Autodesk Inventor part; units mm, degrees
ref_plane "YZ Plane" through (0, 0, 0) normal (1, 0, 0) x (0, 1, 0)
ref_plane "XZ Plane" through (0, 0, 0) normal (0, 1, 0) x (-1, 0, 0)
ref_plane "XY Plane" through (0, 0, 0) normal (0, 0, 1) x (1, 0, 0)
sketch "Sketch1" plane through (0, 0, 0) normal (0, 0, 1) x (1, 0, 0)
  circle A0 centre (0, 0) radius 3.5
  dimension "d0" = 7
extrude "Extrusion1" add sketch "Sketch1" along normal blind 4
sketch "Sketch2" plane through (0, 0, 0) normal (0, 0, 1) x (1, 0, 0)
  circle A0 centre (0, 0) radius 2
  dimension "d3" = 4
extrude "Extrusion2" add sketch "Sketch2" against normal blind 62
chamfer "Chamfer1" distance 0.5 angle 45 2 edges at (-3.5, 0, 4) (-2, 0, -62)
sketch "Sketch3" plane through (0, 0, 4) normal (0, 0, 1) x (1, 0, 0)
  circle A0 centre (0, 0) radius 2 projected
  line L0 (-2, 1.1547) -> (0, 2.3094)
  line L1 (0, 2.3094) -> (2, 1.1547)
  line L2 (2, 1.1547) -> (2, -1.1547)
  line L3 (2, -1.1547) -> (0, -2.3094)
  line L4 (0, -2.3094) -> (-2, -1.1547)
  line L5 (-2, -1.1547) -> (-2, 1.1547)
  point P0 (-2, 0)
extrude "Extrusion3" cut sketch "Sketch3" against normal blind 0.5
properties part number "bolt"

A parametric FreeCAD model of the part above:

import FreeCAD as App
import Part
import Sketcher

V = App.Vector
Q = App.Units.Quantity


def edges_at(feature, points):
    """Names of the edges that pass closest to the given points."""
    edges = feature.Shape.Edges
    near = lambda p: min(range(len(edges)), key=lambda i: edges[i].distToShape(Part.Vertex(*p))[0])
    return sorted({f"Edge{near(p) + 1}" for p in points})

doc = App.newDocument("Part")
body = doc.addObject("PartDesign::Body", "Body")

sketch1 = body.newObject("Sketcher::SketchObject", "Sketch")
sketch1.AttachmentSupport = (doc.getObject("XY_Plane"), [""])
sketch1.MapMode = "FlatFace"
sketch1.addGeometry(Part.Circle(V(0, 0, 0), V(0, 0, 1), 3.5), False)
sketch1.addConstraint([
    Sketcher.Constraint("Coincident", 0, 3, -1, 1),
    Sketcher.Constraint("Diameter", 0, Q("7 mm")),
])
pad1 = body.newObject("PartDesign::Pad", "Pad")
pad1.Profile = sketch1
pad1.Length = 4

sketch2 = body.newObject("Sketcher::SketchObject", "Sketch001")
sketch2.AttachmentSupport = (doc.getObject("XY_Plane"), [""])
sketch2.MapMode = "FlatFace"
sketch2.addGeometry(Part.Circle(V(0, 0, 0), V(0, 0, 1), 2), False)
sketch2.addConstraint([
    Sketcher.Constraint("Coincident", 0, 3, -1, 1),
    Sketcher.Constraint("Diameter", 0, Q("4 mm")),
])
pad2 = body.newObject("PartDesign::Pad", "Pad001")
pad2.Profile = sketch2
pad2.Length = 62
pad2.Reversed = True
doc.recompute()

chamfer = body.newObject("PartDesign::Chamfer", "Chamfer")
chamfer.Base = (pad2, edges_at(pad2, [(-3.5, 0, 4), (-2, 0, -62)]))
chamfer.Size = 0.5

sketch3 = body.newObject("Sketcher::SketchObject", "Sketch002")
sketch3.AttachmentSupport = (doc.getObject("XY_Plane"), [""])
sketch3.MapMode = "FlatFace"
sketch3.AttachmentOffset = App.Placement(V(0, 0, 4), App.Rotation())
sketch3.addGeometry([
    Part.LineSegment(V(2, -1.2, 0), V(2, 1.2, 0)),
    Part.LineSegment(V(2, 1.2, 0), V(0, 2.3, 0)),
    Part.LineSegment(V(0, 2.3, 0), V(-2, 1.2, 0)),
    Part.LineSegment(V(-2, 1.2, 0), V(-2, -1.2, 0)),
    Part.LineSegment(V(-2, -1.2, 0), V(0, -2.3, 0)),
    Part.LineSegment(V(0, -2.3, 0), V(2, -1.2, 0)),
], False)
sketch3.addConstraint([
    Sketcher.Constraint("Coincident", 0, 2, 1, 1),
    Sketcher.Constraint("Coincident", 1, 2, 2, 1),
    Sketcher.Constraint("Coincident", 2, 2, 3, 1),
    Sketcher.Constraint("Coincident", 3, 2, 4, 1),
    Sketcher.Constraint("Coincident", 4, 2, 5, 1),
    Sketcher.Constraint("Coincident", 5, 2, 0, 1),
    Sketcher.Constraint("Vertical", 0),
    Sketcher.Constraint("Vertical", 3),
    Sketcher.Constraint("Symmetric", 0, 2, 3, 2, -1, 1),
    Sketcher.Constraint("Symmetric", 1, 2, 4, 2, -1, 1),
    Sketcher.Constraint("PointOnObject", 1, 2, -2),
    Sketcher.Constraint("Parallel", 2, 5),
    Sketcher.Constraint("Horizontal", 0, 2, 2, 2),
    Sketcher.Constraint("Angle", 1, Q("150 deg")),
    Sketcher.Constraint("DistanceX", -1, 1, 0, 2, Q("2 mm")),
    Sketcher.Constraint("DistanceY", 0, 1, 0, 2, Q("2.3094 mm")),
])
pocket1 = body.newObject("PartDesign::Pocket", "Pocket")
pocket1.Profile = sketch3
pocket1.Length = 0.5

doc.recompute()
